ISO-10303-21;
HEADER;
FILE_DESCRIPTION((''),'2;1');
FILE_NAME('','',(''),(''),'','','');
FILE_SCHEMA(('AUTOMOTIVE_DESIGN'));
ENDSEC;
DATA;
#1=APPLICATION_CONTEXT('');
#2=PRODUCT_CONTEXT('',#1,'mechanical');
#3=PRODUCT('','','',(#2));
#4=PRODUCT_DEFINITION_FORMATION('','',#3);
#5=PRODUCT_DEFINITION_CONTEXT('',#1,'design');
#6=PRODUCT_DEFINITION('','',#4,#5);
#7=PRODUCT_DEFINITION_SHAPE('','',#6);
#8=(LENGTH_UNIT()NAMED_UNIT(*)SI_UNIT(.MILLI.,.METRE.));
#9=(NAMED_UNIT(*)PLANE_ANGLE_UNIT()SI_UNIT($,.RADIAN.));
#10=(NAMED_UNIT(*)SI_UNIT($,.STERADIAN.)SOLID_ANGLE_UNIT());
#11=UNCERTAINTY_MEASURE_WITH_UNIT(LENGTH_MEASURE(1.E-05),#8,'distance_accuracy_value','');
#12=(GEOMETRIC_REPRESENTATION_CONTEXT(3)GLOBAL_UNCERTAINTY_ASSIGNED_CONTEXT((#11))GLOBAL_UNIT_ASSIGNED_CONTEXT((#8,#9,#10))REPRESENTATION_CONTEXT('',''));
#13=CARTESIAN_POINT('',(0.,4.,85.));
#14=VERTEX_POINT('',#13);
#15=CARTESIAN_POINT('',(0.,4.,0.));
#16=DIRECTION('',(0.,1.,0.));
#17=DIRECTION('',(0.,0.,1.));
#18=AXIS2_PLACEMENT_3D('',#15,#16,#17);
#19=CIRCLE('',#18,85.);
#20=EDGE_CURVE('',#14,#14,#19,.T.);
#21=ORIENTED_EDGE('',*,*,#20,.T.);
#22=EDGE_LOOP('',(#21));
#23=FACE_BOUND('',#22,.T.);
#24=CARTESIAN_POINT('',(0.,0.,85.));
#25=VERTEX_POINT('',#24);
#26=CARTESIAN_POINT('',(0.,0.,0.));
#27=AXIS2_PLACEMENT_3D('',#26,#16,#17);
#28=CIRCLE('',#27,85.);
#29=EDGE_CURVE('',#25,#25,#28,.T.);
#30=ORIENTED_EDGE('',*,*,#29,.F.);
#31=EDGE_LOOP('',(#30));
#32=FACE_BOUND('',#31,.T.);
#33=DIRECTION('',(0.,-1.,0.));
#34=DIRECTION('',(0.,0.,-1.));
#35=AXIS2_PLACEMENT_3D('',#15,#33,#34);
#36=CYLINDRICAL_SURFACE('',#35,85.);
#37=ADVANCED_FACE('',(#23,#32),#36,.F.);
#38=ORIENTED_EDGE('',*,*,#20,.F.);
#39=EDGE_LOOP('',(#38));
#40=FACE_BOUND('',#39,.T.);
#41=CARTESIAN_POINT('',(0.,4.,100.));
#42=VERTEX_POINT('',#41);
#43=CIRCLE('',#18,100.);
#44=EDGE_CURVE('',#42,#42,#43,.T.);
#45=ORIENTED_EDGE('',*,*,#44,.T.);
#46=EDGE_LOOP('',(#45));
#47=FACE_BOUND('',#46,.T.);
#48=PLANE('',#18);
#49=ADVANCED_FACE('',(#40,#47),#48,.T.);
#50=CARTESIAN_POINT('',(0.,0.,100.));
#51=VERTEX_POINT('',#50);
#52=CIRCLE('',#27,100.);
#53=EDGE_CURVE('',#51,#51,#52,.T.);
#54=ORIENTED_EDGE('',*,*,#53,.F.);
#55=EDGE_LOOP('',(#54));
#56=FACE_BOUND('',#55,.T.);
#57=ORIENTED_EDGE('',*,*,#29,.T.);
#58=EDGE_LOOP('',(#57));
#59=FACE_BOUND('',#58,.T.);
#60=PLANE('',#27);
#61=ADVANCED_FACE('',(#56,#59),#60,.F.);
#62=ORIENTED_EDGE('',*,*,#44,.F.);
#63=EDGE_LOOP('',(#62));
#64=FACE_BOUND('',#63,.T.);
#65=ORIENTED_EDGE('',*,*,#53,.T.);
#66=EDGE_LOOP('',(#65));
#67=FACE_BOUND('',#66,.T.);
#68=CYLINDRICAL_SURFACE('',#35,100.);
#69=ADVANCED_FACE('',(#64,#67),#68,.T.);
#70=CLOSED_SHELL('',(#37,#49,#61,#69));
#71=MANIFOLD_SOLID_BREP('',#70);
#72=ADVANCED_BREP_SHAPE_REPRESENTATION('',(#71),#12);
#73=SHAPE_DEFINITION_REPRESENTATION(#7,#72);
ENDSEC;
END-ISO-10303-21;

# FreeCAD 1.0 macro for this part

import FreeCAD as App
import Part
import Sketcher

V = App.Vector

doc = App.newDocument("Part")
body = doc.addObject("PartDesign::Body", "Body")

sketch1 = body.newObject("Sketcher::SketchObject", "Sketch")
sketch1.AttachmentSupport = (doc.getObject("XZ_Plane"), [""])
sketch1.MapMode = "FlatFace"
sketch1.addGeometry(Part.Circle(V(0, 0, 0), V(0, 0, 1), 100), False)
sketch1.addGeometry(Part.Circle(V(0, 0, 0), V(0, 0, 1), 85), False)
sketch1.addConstraint(Sketcher.Constraint("Coincident", 0, 3, -1, 1))
sketch1.addConstraint(Sketcher.Constraint("Coincident", 1, 3, -1, 1))
sketch1.addConstraint(Sketcher.Constraint("Diameter", 0, 200.0))
sketch1.addConstraint(Sketcher.Constraint("Diameter", 1, 170.0))
pad1 = body.newObject("PartDesign::Pad", "Pad")
pad1.Profile = sketch1
pad1.Length = 4
pad1.Reversed = True

doc.recompute()
